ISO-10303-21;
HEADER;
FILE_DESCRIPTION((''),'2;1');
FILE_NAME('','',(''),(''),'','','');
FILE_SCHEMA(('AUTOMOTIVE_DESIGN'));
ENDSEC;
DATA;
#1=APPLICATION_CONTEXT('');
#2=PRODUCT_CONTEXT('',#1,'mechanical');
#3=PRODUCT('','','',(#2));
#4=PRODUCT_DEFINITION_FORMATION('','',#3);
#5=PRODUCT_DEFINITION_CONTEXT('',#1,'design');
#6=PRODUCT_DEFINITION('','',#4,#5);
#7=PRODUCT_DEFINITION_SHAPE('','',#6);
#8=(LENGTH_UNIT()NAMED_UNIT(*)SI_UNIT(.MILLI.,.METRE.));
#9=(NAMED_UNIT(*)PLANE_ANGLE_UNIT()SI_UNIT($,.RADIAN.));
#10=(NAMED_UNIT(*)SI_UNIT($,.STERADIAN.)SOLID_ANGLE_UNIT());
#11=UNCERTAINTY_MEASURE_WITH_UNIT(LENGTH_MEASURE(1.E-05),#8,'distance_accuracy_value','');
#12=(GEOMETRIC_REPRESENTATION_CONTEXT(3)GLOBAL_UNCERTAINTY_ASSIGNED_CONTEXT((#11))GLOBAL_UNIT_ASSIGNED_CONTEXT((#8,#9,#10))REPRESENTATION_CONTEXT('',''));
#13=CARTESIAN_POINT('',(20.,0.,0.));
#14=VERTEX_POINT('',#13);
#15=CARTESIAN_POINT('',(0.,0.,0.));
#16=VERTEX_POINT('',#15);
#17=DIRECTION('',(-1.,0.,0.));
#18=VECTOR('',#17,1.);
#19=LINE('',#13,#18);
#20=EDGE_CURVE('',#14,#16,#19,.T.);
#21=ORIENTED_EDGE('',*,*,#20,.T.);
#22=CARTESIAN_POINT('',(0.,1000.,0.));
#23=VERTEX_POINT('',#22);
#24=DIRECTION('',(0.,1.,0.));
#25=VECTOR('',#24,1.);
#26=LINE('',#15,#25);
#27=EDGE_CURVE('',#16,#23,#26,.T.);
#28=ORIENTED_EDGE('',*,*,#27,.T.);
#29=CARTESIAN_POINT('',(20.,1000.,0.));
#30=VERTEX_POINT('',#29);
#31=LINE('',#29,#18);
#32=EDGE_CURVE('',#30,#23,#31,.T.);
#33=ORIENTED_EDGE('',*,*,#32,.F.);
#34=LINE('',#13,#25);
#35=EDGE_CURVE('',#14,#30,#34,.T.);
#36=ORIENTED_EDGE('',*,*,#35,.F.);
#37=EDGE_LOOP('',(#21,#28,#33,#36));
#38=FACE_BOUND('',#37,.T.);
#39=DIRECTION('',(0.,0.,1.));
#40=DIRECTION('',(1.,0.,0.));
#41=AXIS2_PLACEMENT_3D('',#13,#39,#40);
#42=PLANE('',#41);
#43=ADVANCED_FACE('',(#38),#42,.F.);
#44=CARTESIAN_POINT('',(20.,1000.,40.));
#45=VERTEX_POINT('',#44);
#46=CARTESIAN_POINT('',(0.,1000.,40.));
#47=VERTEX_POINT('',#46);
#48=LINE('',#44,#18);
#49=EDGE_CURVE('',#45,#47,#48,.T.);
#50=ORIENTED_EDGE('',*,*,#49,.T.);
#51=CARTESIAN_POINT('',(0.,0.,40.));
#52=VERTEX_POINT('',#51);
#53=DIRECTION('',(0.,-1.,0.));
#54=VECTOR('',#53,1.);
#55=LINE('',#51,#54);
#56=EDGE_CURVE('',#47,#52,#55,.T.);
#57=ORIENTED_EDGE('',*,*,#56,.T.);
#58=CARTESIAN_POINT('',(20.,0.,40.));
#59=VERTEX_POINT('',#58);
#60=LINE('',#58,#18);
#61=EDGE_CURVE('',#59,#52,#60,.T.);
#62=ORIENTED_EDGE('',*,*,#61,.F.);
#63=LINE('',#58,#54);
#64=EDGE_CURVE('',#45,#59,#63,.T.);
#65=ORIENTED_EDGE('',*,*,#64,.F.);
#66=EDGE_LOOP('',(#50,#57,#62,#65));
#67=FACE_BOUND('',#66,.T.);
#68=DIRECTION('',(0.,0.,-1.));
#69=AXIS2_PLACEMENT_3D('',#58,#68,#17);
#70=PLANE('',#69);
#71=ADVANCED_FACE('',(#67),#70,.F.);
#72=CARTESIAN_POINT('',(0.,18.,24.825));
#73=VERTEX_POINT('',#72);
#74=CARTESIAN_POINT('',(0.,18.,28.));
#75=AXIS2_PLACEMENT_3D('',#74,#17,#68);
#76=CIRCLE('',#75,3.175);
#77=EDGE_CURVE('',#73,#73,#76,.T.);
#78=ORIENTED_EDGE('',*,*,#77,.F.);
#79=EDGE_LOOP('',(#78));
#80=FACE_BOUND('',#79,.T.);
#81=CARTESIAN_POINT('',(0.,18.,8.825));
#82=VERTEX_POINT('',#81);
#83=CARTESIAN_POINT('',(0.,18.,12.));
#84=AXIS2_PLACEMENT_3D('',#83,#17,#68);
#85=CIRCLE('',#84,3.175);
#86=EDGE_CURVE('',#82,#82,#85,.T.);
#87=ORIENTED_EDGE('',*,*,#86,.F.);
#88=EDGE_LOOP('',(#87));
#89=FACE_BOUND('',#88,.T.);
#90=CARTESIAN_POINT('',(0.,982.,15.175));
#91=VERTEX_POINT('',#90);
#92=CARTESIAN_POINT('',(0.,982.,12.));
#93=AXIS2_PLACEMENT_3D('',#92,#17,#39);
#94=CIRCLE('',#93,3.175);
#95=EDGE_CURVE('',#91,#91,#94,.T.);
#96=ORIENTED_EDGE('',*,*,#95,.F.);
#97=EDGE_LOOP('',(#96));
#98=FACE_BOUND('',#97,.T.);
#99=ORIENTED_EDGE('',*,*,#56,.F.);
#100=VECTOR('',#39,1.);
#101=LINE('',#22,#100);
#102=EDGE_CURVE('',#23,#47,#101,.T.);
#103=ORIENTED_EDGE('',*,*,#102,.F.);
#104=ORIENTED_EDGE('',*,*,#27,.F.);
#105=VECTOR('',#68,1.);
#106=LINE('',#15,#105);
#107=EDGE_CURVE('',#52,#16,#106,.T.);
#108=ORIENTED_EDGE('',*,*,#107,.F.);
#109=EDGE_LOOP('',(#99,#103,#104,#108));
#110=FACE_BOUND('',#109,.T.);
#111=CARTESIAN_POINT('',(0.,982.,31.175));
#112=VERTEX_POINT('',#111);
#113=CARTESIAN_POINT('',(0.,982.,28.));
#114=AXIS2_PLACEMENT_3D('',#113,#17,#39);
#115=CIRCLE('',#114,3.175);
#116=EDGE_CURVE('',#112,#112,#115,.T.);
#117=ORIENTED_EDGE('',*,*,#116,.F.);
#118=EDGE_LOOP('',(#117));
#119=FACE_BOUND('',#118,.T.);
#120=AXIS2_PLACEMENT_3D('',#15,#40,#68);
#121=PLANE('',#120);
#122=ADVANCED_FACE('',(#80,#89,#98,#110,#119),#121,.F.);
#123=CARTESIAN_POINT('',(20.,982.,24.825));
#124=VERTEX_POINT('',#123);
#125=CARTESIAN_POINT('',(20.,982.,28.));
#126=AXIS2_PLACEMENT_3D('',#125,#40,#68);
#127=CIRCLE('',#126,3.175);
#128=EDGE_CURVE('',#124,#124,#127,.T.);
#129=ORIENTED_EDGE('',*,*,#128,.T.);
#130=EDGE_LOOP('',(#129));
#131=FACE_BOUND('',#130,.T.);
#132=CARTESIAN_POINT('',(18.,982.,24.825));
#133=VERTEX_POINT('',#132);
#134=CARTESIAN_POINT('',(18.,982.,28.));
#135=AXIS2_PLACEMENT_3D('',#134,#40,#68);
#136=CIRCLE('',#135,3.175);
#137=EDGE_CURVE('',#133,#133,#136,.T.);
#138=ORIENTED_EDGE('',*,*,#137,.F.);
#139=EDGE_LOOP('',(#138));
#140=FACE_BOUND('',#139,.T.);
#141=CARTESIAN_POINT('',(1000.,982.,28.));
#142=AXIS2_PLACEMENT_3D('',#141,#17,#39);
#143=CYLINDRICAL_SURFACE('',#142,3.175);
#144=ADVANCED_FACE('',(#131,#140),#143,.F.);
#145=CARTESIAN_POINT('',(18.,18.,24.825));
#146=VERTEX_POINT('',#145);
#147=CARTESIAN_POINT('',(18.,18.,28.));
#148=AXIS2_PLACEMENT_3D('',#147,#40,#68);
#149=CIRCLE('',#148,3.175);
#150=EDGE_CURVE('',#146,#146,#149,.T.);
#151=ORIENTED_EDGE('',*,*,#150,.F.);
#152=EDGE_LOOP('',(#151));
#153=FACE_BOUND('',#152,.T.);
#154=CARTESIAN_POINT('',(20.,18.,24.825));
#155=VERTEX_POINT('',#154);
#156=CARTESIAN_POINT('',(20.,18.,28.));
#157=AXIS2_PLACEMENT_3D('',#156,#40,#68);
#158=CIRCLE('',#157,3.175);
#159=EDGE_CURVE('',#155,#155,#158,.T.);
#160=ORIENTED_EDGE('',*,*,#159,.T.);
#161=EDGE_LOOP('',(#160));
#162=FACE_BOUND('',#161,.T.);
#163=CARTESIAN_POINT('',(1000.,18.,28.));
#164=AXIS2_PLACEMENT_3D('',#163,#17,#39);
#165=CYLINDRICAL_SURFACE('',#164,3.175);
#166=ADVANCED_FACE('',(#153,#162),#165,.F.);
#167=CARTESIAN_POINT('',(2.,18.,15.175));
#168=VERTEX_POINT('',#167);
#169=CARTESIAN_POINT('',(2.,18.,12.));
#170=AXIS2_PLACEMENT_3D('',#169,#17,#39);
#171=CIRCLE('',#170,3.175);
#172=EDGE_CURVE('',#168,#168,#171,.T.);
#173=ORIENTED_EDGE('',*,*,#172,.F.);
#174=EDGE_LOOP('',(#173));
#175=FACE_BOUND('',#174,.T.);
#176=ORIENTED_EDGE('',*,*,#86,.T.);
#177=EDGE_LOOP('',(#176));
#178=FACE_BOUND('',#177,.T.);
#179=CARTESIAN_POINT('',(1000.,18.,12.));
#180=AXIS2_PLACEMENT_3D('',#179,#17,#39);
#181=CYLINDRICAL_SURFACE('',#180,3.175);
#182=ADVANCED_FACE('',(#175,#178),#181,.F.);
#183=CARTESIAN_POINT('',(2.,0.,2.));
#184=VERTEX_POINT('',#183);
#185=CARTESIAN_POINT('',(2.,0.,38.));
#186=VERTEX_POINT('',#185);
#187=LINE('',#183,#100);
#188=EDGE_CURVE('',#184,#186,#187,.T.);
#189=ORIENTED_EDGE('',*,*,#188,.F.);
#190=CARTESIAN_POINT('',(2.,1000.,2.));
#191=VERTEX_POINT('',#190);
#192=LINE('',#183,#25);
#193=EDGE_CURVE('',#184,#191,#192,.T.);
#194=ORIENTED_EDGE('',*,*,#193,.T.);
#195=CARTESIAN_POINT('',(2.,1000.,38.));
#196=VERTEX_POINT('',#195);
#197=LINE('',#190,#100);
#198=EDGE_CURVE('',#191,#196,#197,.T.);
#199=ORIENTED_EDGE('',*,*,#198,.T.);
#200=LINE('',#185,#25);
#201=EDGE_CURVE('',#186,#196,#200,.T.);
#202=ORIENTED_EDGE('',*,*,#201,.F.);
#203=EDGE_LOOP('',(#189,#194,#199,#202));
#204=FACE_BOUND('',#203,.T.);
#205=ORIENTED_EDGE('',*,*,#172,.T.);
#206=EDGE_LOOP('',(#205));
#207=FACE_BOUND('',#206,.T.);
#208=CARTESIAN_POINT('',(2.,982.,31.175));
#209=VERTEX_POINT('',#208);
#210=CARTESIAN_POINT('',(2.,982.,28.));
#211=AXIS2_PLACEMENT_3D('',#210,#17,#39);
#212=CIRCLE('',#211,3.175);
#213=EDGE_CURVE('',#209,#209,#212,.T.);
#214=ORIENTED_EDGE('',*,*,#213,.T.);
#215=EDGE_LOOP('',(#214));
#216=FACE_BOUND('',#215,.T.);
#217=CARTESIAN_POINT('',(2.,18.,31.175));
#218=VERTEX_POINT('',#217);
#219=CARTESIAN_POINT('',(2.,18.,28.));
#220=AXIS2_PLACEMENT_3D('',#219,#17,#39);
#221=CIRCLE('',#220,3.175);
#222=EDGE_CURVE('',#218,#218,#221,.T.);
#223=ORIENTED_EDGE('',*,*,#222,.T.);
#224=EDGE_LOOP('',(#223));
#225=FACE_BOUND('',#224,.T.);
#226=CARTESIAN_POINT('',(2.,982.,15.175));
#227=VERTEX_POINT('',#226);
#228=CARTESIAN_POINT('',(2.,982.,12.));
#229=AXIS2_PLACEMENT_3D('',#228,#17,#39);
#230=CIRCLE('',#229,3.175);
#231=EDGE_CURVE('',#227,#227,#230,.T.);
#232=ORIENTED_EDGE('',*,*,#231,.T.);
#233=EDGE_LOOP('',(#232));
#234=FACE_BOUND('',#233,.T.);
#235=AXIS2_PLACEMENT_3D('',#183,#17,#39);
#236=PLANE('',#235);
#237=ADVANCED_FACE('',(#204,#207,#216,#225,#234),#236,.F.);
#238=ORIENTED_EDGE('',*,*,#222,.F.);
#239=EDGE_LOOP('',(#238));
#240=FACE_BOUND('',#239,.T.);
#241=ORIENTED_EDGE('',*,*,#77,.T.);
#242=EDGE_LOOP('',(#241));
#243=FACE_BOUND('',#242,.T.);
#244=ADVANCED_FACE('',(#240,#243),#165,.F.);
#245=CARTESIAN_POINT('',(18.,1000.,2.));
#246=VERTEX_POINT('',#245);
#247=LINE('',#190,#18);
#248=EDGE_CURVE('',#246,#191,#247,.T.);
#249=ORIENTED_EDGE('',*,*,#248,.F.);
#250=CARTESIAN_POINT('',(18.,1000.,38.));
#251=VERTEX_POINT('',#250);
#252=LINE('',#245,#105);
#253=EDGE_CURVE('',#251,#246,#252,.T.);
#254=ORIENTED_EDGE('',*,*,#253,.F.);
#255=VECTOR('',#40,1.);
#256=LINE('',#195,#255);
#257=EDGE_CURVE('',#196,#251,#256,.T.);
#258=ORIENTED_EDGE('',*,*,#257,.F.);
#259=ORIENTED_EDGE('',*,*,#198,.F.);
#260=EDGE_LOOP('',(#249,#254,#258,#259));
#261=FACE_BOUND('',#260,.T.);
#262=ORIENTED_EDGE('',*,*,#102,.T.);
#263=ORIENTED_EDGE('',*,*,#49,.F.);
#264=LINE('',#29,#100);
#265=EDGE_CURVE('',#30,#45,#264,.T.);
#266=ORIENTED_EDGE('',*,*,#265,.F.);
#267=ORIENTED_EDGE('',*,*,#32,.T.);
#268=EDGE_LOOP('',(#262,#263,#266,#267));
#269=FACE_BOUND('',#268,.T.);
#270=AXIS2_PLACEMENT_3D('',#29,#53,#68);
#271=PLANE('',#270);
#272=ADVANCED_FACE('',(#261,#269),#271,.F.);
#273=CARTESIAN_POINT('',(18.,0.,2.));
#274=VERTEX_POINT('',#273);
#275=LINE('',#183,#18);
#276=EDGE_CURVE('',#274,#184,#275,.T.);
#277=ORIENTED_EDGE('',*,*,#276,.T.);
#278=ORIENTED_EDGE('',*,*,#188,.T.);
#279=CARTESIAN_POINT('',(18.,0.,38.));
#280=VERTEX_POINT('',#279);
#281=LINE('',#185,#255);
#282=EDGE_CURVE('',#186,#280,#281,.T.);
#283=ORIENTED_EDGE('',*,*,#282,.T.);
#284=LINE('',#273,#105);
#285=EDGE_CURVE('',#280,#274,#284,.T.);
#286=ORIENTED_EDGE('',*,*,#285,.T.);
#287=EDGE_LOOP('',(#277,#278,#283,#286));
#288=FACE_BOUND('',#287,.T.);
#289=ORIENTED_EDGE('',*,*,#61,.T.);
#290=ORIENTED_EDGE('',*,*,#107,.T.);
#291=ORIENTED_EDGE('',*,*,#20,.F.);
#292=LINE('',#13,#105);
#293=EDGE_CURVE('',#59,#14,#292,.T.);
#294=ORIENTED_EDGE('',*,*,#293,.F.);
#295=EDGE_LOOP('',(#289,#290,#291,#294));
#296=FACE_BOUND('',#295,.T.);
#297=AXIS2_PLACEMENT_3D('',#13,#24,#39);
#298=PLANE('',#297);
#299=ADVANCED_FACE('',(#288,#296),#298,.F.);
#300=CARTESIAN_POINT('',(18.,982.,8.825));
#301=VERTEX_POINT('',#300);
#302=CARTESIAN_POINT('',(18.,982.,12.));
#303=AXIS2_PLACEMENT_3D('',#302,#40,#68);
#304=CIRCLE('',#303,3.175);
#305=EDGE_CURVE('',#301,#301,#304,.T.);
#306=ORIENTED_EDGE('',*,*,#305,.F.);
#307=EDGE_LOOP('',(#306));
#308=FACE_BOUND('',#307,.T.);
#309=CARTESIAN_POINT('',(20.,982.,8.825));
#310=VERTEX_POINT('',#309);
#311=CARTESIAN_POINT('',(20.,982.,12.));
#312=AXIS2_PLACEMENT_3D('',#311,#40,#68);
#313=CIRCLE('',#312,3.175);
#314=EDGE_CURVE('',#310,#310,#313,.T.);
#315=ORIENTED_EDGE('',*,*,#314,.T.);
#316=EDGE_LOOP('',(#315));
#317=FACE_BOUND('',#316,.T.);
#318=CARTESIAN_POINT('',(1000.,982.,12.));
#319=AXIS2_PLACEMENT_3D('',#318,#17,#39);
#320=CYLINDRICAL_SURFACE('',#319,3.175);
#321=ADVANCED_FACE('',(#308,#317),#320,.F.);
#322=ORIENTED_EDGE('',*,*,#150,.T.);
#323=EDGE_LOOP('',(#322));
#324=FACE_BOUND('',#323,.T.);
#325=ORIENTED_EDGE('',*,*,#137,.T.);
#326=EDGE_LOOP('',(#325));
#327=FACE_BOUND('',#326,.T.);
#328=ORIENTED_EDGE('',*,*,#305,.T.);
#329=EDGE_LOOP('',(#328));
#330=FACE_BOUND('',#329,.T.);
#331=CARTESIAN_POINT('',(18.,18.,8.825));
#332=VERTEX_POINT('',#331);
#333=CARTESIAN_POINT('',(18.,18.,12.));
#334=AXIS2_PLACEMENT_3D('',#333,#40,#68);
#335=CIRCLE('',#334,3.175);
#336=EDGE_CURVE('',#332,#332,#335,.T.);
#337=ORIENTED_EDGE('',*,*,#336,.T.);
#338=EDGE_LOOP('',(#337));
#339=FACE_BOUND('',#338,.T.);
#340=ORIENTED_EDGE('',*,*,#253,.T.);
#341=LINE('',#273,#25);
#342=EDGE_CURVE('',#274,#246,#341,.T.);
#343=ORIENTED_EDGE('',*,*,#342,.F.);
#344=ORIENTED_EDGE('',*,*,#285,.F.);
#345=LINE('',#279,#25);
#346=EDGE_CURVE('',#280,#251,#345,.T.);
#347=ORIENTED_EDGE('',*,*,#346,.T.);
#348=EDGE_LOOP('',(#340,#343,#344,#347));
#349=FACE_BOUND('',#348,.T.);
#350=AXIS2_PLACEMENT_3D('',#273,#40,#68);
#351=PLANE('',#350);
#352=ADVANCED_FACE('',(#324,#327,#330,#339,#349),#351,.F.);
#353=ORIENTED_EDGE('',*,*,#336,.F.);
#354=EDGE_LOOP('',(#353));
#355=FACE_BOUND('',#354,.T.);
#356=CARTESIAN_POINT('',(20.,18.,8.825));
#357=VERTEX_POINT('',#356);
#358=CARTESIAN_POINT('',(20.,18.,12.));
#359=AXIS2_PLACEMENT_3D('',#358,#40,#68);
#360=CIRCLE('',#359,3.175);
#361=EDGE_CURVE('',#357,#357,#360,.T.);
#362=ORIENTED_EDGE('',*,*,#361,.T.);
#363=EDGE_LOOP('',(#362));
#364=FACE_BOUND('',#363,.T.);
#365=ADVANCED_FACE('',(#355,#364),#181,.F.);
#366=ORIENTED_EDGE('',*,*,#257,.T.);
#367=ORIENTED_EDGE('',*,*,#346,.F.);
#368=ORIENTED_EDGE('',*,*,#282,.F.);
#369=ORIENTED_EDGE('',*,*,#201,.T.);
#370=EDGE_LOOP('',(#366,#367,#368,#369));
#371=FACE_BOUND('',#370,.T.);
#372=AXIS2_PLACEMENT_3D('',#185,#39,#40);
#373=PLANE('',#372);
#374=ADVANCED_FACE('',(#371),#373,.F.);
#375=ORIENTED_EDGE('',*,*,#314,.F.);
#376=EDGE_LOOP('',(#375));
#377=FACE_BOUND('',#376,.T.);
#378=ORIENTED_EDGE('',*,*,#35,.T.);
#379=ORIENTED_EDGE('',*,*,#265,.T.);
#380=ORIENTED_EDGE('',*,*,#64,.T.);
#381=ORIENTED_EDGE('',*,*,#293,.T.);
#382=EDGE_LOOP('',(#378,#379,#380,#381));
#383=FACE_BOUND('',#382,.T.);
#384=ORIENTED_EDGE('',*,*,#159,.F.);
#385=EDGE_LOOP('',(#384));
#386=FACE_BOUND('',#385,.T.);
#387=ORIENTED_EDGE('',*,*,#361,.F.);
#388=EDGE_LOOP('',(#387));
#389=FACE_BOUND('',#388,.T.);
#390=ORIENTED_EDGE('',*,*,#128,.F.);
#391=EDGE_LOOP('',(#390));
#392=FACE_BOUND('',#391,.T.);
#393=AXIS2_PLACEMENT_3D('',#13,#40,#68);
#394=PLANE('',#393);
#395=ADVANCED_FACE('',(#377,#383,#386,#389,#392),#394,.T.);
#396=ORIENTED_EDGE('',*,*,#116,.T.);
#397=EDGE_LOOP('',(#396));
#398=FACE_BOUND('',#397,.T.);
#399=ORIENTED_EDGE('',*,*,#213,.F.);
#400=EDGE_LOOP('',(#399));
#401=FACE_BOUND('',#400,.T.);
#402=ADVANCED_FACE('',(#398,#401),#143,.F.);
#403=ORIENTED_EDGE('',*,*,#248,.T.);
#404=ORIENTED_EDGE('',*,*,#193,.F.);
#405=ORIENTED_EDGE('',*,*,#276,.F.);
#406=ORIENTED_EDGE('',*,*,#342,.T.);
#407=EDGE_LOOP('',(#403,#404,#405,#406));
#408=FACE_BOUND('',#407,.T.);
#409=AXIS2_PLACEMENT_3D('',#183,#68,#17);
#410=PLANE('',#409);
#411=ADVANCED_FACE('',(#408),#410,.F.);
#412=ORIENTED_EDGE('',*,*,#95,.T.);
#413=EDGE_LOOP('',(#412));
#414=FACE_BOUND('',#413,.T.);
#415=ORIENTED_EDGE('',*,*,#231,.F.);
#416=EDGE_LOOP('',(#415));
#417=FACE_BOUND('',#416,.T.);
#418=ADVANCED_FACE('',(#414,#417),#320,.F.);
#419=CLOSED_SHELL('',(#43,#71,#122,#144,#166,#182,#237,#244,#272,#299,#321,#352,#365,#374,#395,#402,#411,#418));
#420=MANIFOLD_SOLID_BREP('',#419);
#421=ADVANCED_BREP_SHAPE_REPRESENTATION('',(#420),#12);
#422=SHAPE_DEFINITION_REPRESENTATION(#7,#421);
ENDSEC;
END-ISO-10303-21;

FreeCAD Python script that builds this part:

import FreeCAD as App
import Part
import Sketcher
Q = App.Units.Quantity


def add_polygon(sketch, points):
    """Adds a closed chain of lines whose ends are joined by coincident constraints."""
    first, n = sketch.GeometryCount, len(points)
    for a, b in zip(points, points[1:] + points[:1]):
        sketch.addGeometry(Part.LineSegment(App.Vector(*a, 0), App.Vector(*b, 0)), False)
    for i in range(n):
        sketch.addConstraint(Sketcher.Constraint("Coincident", first + i, 2, first + (i + 1) % n, 1))

doc = App.newDocument("Part")
body = doc.addObject("PartDesign::Body", "Body")

# Sketch on YZ plane
sketch1 = doc.addObject("Sketcher::SketchObject", "Sketch")
body.addObject(sketch1)
sketch1.AttachmentSupport = (doc.YZ_Plane, [""])
sketch1.MapMode = "FlatFace"
add_polygon(sketch1, [(1000, 40), (0, 40), (0, 0), (1000, 0)])  # lines 0-3
sketch1.addConstraint(Sketcher.Constraint("Horizontal", 0))
sketch1.addConstraint(Sketcher.Constraint("Vertical", 1))
sketch1.addConstraint(Sketcher.Constraint("Horizontal", 2))
sketch1.addConstraint(Sketcher.Constraint("Vertical", 3))
sketch1.addConstraint(Sketcher.Constraint("Coincident", 1, 2, -1, 1))
sketch1.addConstraint(Sketcher.Constraint("DistanceX", 0, 2, 0, 1, Q("1000 mm")))
sketch1.addConstraint(Sketcher.Constraint("DistanceY", 1, 2, 1, 1, Q("40 mm")))
pad1 = doc.addObject("PartDesign::Pad", "Pad")
body.addObject(pad1)
pad1.Profile = sketch1
pad1.Length = 20

# Sketch on XZ plane
sketch2 = doc.addObject("Sketcher::SketchObject", "Sketch001")
body.addObject(sketch2)
sketch2.AttachmentSupport = (doc.XZ_Plane, [""])
sketch2.MapMode = "FlatFace"
sketch2.AttachmentOffset = App.Placement(App.Vector(0, 0, -1000), App.Rotation())
add_polygon(sketch2, [(2, 2), (2, 38), (18, 38), (18, 2)])  # lines 0-3
sketch2.addConstraint(Sketcher.Constraint("Vertical", 0))
sketch2.addConstraint(Sketcher.Constraint("Horizontal", 1))
sketch2.addConstraint(Sketcher.Constraint("Vertical", 2))
sketch2.addConstraint(Sketcher.Constraint("Horizontal", 3))
sketch2.addConstraint(Sketcher.Constraint("DistanceX", 1, 1, 1, 2, Q("16 mm")))
sketch2.addConstraint(Sketcher.Constraint("DistanceY", 0, 1, 0, 2, Q("36 mm")))
sketch2.addConstraint(Sketcher.Constraint("DistanceX", -1, 1, 0, 2, Q("2 mm")))
sketch2.addConstraint(Sketcher.Constraint("DistanceY", -1, 1, 0, 2, Q("38 mm")))
pocket1 = doc.addObject("PartDesign::Pocket", "Pocket")
body.addObject(pocket1)
pocket1.Profile = sketch2
pocket1.Length = 1000
pocket1.Reversed = True

# Sketch on YZ plane
sketch3 = doc.addObject("Sketcher::SketchObject", "Sketch002")
body.addObject(sketch3)
sketch3.AttachmentSupport = (doc.YZ_Plane, [""])
sketch3.MapMode = "FlatFace"
sketch3.addGeometry(Part.Circle(App.Vector(982, 12, 0), App.Vector(0, 0, 1), 3.2), False)
sketch3.addGeometry(Part.Circle(App.Vector(982, 28, 0), App.Vector(0, 0, 1), 3.2), False)
sketch3.addGeometry(Part.Circle(App.Vector(18, 28, 0), App.Vector(0, 0, 1), 3.2), False)
sketch3.addGeometry(Part.Circle(App.Vector(18, 12, 0), App.Vector(0, 0, 1), 3.2), False)
sketch3.addConstraint(Sketcher.Constraint("Equal", 0, 1))
sketch3.addConstraint(Sketcher.Constraint("Equal", 1, 2))
sketch3.addConstraint(Sketcher.Constraint("Equal", 2, 3))
sketch3.addConstraint(Sketcher.Constraint("Horizontal", 1, 3, 2, 3))
sketch3.addConstraint(Sketcher.Constraint("Horizontal", 0, 3, 3, 3))
sketch3.addConstraint(Sketcher.Constraint("Vertical", 0, 3, 1, 3))
sketch3.addConstraint(Sketcher.Constraint("Vertical", 2, 3, 3, 3))
sketch3.addConstraint(Sketcher.Constraint("Diameter", 0, Q("6.35 mm")))
sketch3.addConstraint(Sketcher.Constraint("DistanceX", -1, 1, 0, 3, Q("982 mm")))
sketch3.addConstraint(Sketcher.Constraint("DistanceY", -1, 1, 0, 3, Q("12 mm")))
sketch3.addConstraint(Sketcher.Constraint("DistanceY", -1, 1, 1, 3, Q("28 mm")))
sketch3.addConstraint(Sketcher.Constraint("DistanceX", -1, 1, 2, 3, Q("18 mm")))
pocket2 = doc.addObject("PartDesign::Pocket", "Pocket001")
body.addObject(pocket2)
pocket2.Profile = sketch3
pocket2.Length = 1000
pocket2.Reversed = True

doc.recompute()
